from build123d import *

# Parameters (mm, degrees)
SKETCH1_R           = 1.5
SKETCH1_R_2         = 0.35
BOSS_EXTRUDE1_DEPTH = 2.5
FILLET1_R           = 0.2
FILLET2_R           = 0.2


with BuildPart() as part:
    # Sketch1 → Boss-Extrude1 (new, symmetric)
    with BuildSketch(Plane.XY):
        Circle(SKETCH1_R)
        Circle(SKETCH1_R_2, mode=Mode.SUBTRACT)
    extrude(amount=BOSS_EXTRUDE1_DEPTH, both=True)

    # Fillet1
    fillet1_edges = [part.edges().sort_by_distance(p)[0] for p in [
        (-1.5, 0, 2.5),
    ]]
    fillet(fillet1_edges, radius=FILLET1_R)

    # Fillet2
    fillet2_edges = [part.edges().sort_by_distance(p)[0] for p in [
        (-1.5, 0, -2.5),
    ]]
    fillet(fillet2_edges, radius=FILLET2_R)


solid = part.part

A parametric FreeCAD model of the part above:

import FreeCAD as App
import Part
import Sketcher
from FreeCAD import Vector


def edges_at(feature, points):
    """Names of the edges that pass closest to the given points."""
    edges = feature.Shape.Edges
    near = lambda p: min(range(len(edges)), key=lambda i: edges[i].distToShape(Part.Vertex(*p))[0])
    return sorted({f"Edge{near(p) + 1}" for p in points})

doc = App.newDocument("Part")
params = doc.addObject("Spreadsheet::Sheet", "Params")
for row, (alias, value) in enumerate([
    ("sketch1_diameter", "3 mm"),
    ("sketch1_diameter2", "0.7 mm"),
    ("pad1_length", "5 mm"),
    ("fillet_radius", "0.2 mm"),
    ("fillet2_radius", "0.2 mm"),
], start=1):
    params.set(f"A{row}", alias)
    params.set(f"B{row}", "=" + value)
    params.setAlias(f"B{row}", alias)

body = doc.addObject("PartDesign::Body", "Body")

# Sketch on XY plane
sketch1 = body.newObject("Sketcher::SketchObject", "Sketch")
sketch1.AttachmentSupport = (doc.getObject("XY_Plane"), [""])
sketch1.MapMode = "FlatFace"
sketch1.addGeometry(Part.Circle(Vector(0, 0, 0), Vector(0, 0, 1), 1.5), False)
sketch1.addGeometry(Part.Circle(Vector(0, 0, 0), Vector(0, 0, 1), 0.35), False)
sketch1.addConstraint(Sketcher.Constraint("Coincident", 0, 3, -1, 1))
sketch1.addConstraint(Sketcher.Constraint("Coincident", 1, 3, -1, 1))
sketch1.addConstraint(Sketcher.Constraint("Diameter", 0, 3.0))
sketch1.addConstraint(Sketcher.Constraint("Diameter", 1, 0.7))
sketch1.setExpression("Constraints[2]", "Params.sketch1_diameter")
sketch1.setExpression("Constraints[3]", "Params.sketch1_diameter2")
pad1 = body.newObject("PartDesign::Pad", "Pad")
pad1.Profile = sketch1
pad1.setExpression("Length", "Params.pad1_length")
pad1.Midplane = True
doc.recompute()

fillet = body.newObject("PartDesign::Fillet", "Fillet")
fillet.Base = (pad1, edges_at(pad1, [(-1.5, 0, 2.5)]))
fillet.setExpression("Radius", "Params.fillet_radius")
doc.recompute()

fillet2 = body.newObject("PartDesign::Fillet", "Fillet001")
fillet2.Base = (fillet, edges_at(fillet, [(-1.5, 0, -2.5)]))
fillet2.setExpression("Radius", "Params.fillet2_radius")

doc.recompute()
